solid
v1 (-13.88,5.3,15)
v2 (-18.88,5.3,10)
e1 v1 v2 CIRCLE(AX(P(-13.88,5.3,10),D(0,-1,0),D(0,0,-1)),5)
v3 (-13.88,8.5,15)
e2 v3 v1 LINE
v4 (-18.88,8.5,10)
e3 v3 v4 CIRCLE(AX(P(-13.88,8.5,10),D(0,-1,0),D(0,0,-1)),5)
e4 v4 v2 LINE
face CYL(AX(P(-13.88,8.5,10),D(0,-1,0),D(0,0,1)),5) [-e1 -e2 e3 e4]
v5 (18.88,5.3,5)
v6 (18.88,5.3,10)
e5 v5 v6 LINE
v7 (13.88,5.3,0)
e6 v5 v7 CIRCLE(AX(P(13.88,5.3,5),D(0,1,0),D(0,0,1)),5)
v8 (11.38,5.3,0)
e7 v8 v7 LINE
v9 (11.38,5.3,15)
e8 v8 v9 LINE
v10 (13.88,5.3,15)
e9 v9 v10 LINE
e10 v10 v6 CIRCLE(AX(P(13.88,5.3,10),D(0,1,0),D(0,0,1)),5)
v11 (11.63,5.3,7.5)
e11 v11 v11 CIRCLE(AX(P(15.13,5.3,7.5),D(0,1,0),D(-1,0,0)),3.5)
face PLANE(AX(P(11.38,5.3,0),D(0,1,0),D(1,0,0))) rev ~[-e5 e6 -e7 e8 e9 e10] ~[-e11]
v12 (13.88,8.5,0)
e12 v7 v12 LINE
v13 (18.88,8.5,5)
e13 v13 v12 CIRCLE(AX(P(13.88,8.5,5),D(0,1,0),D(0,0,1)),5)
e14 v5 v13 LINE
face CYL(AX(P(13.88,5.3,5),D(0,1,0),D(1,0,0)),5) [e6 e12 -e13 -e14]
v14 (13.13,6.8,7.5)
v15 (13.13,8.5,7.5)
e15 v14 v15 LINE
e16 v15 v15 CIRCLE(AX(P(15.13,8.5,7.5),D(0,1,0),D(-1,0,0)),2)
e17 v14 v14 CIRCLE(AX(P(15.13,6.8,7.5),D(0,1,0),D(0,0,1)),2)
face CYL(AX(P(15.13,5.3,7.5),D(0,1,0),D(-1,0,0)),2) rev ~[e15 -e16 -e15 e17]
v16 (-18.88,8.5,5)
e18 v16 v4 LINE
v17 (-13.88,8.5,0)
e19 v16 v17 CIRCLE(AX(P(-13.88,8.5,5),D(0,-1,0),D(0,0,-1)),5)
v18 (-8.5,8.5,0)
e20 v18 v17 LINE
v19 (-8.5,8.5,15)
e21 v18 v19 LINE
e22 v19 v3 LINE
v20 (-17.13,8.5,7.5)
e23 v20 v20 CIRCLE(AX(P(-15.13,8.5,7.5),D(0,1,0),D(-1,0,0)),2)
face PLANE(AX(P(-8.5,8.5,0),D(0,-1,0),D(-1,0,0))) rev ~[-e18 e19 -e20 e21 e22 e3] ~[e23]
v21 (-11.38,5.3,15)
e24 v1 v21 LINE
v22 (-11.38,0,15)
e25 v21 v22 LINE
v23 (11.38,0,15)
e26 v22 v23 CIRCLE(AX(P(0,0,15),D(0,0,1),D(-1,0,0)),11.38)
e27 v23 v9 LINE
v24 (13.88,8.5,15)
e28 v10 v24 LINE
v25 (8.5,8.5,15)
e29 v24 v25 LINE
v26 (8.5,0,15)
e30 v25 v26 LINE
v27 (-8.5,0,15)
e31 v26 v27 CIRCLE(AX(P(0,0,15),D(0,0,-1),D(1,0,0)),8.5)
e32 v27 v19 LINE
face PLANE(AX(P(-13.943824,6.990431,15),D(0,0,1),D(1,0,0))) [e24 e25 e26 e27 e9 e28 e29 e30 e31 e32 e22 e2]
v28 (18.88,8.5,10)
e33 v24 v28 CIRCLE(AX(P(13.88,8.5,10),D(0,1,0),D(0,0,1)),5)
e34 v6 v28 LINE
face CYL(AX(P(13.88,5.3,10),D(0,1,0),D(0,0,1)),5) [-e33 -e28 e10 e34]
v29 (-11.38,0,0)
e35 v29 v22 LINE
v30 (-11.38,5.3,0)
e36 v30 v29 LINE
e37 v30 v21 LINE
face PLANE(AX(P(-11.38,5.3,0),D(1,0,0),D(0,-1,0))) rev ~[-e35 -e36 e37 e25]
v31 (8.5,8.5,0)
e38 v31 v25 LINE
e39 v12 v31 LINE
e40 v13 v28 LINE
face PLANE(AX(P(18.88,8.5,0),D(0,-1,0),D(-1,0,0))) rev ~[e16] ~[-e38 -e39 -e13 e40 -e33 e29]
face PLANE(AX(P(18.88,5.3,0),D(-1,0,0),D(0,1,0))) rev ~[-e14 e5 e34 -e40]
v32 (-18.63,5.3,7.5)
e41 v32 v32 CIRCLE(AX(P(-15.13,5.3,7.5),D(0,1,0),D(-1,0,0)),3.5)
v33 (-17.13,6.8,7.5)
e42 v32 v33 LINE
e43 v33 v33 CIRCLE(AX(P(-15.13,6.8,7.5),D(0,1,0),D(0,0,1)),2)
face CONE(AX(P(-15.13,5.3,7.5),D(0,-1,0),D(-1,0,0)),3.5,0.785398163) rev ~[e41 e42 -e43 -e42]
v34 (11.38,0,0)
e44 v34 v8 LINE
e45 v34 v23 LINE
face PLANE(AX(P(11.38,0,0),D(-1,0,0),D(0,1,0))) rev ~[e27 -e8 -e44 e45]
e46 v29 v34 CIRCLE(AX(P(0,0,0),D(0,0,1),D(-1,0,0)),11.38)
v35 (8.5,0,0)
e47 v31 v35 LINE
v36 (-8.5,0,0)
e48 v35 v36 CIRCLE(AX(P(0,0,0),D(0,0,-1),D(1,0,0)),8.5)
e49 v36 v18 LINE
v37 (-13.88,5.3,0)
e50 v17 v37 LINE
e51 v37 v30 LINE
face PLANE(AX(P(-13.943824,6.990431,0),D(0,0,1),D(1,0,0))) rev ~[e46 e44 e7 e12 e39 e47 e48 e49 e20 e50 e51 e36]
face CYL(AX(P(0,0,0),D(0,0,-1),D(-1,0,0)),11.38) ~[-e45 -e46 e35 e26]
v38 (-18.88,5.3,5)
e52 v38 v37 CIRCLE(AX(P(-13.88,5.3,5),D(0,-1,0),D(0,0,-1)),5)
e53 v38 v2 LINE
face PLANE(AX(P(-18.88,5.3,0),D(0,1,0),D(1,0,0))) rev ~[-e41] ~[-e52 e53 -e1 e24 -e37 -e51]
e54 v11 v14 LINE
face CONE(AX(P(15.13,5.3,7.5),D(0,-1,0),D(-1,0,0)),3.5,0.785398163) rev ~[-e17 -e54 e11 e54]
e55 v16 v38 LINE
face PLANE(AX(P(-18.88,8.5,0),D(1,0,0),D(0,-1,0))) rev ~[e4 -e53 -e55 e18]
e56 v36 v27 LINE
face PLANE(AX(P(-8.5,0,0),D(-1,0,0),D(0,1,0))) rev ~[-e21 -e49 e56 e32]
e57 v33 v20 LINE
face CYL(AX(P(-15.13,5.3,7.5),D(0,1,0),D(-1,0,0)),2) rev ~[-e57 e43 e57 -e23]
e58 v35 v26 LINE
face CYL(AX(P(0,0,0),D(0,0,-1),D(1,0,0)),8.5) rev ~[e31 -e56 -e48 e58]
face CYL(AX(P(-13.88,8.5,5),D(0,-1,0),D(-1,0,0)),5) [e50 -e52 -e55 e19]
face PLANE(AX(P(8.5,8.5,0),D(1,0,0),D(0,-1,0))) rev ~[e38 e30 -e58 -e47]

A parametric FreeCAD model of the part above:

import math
import FreeCAD as App
import Part
import Sketcher
from FreeCAD import Vector
Q = App.Units.Quantity


def edges_at(feature, points):
    """Names of the edges that pass closest to the given points."""
    edges = feature.Shape.Edges
    near = lambda p: min(range(len(edges)), key=lambda i: edges[i].distToShape(Part.Vertex(*p))[0])
    return sorted({f"Edge{near(p) + 1}" for p in points})

doc = App.newDocument("Part")
body = doc.addObject("PartDesign::Body", "Body")

# Sketch on XY plane
sketch1 = doc.addObject("Sketcher::SketchObject", "Sketch")
body.addObject(sketch1)
sketch1.AttachmentSupport = (doc.XY_Plane, [""])
sketch1.MapMode = "FlatFace"
sketch1.addGeometry(Part.LineSegment(Vector(-11.4, 5.3, 0), Vector(-11.4, 0, 0)), False)
sketch1.addGeometry(Part.ArcOfCircle(Part.Circle(Vector(0, 0, 0), Vector(0, 0, 1), 11.4), math.radians(180), math.radians(360)), False)
sketch1.addGeometry(Part.LineSegment(Vector(11.4, 0, 0), Vector(11.4, 5.3, 0)), False)
sketch1.addGeometry(Part.LineSegment(Vector(11.4, 5.3, 0), Vector(18.9, 5.3, 0)), False)
sketch1.addGeometry(Part.LineSegment(Vector(18.9, 5.3, 0), Vector(18.9, 8.5, 0)), False)
sketch1.addGeometry(Part.LineSegment(Vector(18.9, 8.5, 0), Vector(8.5, 8.5, 0)), False)
sketch1.addGeometry(Part.LineSegment(Vector(8.5, 8.5, 0), Vector(8.5, 0, 0)), False)
sketch1.addGeometry(Part.ArcOfCircle(Part.Circle(Vector(0, 0, 0), Vector(0, 0, 1), 8.5), math.radians(180), math.radians(360)), False)
sketch1.addGeometry(Part.LineSegment(Vector(-8.5, 0, 0), Vector(-8.5, 8.5, 0)), False)
sketch1.addGeometry(Part.LineSegment(Vector(-8.5, 8.5, 0), Vector(-18.9, 8.5, 0)), False)
sketch1.addGeometry(Part.LineSegment(Vector(-18.9, 8.5, 0), Vector(-18.9, 5.3, 0)), False)
sketch1.addGeometry(Part.LineSegment(Vector(-18.9, 5.3, 0), Vector(-11.4, 5.3, 0)), False)
sketch1.addConstraint(Sketcher.Constraint("Tangent", 0, 2, 1, 1))
sketch1.addConstraint(Sketcher.Constraint("Tangent", 1, 2, 2, 1))
sketch1.addConstraint(Sketcher.Constraint("Coincident", 2, 2, 3, 1))
sketch1.addConstraint(Sketcher.Constraint("Coincident", 3, 2, 4, 1))
sketch1.addConstraint(Sketcher.Constraint("Coincident", 4, 2, 5, 1))
sketch1.addConstraint(Sketcher.Constraint("Coincident", 5, 2, 6, 1))
sketch1.addConstraint(Sketcher.Constraint("Tangent", 6, 2, 7, 2))
sketch1.addConstraint(Sketcher.Constraint("Tangent", 7, 1, 8, 1))
sketch1.addConstraint(Sketcher.Constraint("Coincident", 8, 2, 9, 1))
sketch1.addConstraint(Sketcher.Constraint("Coincident", 9, 2, 10, 1))
sketch1.addConstraint(Sketcher.Constraint("Coincident", 10, 2, 11, 1))
sketch1.addConstraint(Sketcher.Constraint("Coincident", 11, 2, 0, 1))
sketch1.addConstraint(Sketcher.Constraint("Vertical", 0))
sketch1.addConstraint(Sketcher.Constraint("Vertical", 2))
sketch1.addConstraint(Sketcher.Constraint("Horizontal", 3))
sketch1.addConstraint(Sketcher.Constraint("Vertical", 4))
sketch1.addConstraint(Sketcher.Constraint("Horizontal", 5))
sketch1.addConstraint(Sketcher.Constraint("Vertical", 6))
sketch1.addConstraint(Sketcher.Constraint("Vertical", 8))
sketch1.addConstraint(Sketcher.Constraint("Horizontal", 9))
sketch1.addConstraint(Sketcher.Constraint("Vertical", 10))
sketch1.addConstraint(Sketcher.Constraint("Horizontal", 11))
sketch1.addConstraint(Sketcher.Constraint("Coincident", 1, 3, -1, 1))
sketch1.addConstraint(Sketcher.Constraint("Coincident", 7, 3, -1, 1))
sketch1.addConstraint(Sketcher.Constraint("Symmetric", 4, 2, 9, 2, -2))
sketch1.addConstraint(Sketcher.Constraint("Horizontal", 3, 2, 10, 2))
sketch1.addConstraint(Sketcher.Constraint("Radius", 7, Q("8.5 mm")))
sketch1.addConstraint(Sketcher.Constraint("Radius", 1, Q("11.38 mm")))
sketch1.addConstraint(Sketcher.Constraint("DistanceX", 3, 1, 3, 2, Q("7.5 mm")))
sketch1.addConstraint(Sketcher.Constraint("DistanceY", 0, 2, 0, 1, Q("5.3 mm")))
sketch1.addConstraint(Sketcher.Constraint("DistanceY", 4, 1, 4, 2, Q("3.2 mm")))
pad1 = doc.addObject("PartDesign::Pad", "Pad")
body.addObject(pad1)
pad1.Profile = sketch1
pad1.Length = 15

# Sketch on XZ plane
sketch2 = doc.addObject("Sketcher::SketchObject", "Sketch001")
body.addObject(sketch2)
sketch2.AttachmentSupport = (doc.XZ_Plane, [""])
sketch2.MapMode = "FlatFace"
sketch2.AttachmentOffset = App.Placement(Vector(0, 0, -5.3), App.Rotation())
sketch2.addGeometry(Part.Circle(Vector(-15.1, 7.5, 0), Vector(0, 0, 1), 2), False)
sketch2.addGeometry(Part.Circle(Vector(15.1, 7.5, 0), Vector(0, 0, 1), 2), False)
sketch2.addConstraint(Sketcher.Constraint("Equal", 0, 1))
sketch2.addConstraint(Sketcher.Constraint("Symmetric", 0, 3, 1, 3, -2))
sketch2.addConstraint(Sketcher.Constraint("Diameter", 0, Q("4 mm")))
sketch2.addConstraint(Sketcher.Constraint("DistanceY", -1, 1, 0, 3, Q("7.5 mm")))
sketch2.addConstraint(Sketcher.Constraint("DistanceX", 0, 3, -1, 1, Q("15.13 mm")))
doc.recompute()
hole = doc.addObject("PartDesign::Hole", "Hole")
body.addObject(hole)
hole.Profile = sketch2
hole.ThreadType = "None"
hole.Diameter = 4
hole.DepthType = "ThroughAll"
hole.HoleCutType = "Countersink"
hole.HoleCutDiameter = 7
hole.HoleCutCountersinkAngle = 90
doc.recompute()

fillet = doc.addObject("PartDesign::Fillet", "Fillet")
body.addObject(fillet)
fillet.Base = (hole, edges_at(hole, [
    (-18.88, 6.9, 15),
    (-18.88, 6.9, 0),
    (18.88, 6.9, 15),
    (18.88, 6.9, 0),
]))
fillet.Radius = 5

doc.recompute()
